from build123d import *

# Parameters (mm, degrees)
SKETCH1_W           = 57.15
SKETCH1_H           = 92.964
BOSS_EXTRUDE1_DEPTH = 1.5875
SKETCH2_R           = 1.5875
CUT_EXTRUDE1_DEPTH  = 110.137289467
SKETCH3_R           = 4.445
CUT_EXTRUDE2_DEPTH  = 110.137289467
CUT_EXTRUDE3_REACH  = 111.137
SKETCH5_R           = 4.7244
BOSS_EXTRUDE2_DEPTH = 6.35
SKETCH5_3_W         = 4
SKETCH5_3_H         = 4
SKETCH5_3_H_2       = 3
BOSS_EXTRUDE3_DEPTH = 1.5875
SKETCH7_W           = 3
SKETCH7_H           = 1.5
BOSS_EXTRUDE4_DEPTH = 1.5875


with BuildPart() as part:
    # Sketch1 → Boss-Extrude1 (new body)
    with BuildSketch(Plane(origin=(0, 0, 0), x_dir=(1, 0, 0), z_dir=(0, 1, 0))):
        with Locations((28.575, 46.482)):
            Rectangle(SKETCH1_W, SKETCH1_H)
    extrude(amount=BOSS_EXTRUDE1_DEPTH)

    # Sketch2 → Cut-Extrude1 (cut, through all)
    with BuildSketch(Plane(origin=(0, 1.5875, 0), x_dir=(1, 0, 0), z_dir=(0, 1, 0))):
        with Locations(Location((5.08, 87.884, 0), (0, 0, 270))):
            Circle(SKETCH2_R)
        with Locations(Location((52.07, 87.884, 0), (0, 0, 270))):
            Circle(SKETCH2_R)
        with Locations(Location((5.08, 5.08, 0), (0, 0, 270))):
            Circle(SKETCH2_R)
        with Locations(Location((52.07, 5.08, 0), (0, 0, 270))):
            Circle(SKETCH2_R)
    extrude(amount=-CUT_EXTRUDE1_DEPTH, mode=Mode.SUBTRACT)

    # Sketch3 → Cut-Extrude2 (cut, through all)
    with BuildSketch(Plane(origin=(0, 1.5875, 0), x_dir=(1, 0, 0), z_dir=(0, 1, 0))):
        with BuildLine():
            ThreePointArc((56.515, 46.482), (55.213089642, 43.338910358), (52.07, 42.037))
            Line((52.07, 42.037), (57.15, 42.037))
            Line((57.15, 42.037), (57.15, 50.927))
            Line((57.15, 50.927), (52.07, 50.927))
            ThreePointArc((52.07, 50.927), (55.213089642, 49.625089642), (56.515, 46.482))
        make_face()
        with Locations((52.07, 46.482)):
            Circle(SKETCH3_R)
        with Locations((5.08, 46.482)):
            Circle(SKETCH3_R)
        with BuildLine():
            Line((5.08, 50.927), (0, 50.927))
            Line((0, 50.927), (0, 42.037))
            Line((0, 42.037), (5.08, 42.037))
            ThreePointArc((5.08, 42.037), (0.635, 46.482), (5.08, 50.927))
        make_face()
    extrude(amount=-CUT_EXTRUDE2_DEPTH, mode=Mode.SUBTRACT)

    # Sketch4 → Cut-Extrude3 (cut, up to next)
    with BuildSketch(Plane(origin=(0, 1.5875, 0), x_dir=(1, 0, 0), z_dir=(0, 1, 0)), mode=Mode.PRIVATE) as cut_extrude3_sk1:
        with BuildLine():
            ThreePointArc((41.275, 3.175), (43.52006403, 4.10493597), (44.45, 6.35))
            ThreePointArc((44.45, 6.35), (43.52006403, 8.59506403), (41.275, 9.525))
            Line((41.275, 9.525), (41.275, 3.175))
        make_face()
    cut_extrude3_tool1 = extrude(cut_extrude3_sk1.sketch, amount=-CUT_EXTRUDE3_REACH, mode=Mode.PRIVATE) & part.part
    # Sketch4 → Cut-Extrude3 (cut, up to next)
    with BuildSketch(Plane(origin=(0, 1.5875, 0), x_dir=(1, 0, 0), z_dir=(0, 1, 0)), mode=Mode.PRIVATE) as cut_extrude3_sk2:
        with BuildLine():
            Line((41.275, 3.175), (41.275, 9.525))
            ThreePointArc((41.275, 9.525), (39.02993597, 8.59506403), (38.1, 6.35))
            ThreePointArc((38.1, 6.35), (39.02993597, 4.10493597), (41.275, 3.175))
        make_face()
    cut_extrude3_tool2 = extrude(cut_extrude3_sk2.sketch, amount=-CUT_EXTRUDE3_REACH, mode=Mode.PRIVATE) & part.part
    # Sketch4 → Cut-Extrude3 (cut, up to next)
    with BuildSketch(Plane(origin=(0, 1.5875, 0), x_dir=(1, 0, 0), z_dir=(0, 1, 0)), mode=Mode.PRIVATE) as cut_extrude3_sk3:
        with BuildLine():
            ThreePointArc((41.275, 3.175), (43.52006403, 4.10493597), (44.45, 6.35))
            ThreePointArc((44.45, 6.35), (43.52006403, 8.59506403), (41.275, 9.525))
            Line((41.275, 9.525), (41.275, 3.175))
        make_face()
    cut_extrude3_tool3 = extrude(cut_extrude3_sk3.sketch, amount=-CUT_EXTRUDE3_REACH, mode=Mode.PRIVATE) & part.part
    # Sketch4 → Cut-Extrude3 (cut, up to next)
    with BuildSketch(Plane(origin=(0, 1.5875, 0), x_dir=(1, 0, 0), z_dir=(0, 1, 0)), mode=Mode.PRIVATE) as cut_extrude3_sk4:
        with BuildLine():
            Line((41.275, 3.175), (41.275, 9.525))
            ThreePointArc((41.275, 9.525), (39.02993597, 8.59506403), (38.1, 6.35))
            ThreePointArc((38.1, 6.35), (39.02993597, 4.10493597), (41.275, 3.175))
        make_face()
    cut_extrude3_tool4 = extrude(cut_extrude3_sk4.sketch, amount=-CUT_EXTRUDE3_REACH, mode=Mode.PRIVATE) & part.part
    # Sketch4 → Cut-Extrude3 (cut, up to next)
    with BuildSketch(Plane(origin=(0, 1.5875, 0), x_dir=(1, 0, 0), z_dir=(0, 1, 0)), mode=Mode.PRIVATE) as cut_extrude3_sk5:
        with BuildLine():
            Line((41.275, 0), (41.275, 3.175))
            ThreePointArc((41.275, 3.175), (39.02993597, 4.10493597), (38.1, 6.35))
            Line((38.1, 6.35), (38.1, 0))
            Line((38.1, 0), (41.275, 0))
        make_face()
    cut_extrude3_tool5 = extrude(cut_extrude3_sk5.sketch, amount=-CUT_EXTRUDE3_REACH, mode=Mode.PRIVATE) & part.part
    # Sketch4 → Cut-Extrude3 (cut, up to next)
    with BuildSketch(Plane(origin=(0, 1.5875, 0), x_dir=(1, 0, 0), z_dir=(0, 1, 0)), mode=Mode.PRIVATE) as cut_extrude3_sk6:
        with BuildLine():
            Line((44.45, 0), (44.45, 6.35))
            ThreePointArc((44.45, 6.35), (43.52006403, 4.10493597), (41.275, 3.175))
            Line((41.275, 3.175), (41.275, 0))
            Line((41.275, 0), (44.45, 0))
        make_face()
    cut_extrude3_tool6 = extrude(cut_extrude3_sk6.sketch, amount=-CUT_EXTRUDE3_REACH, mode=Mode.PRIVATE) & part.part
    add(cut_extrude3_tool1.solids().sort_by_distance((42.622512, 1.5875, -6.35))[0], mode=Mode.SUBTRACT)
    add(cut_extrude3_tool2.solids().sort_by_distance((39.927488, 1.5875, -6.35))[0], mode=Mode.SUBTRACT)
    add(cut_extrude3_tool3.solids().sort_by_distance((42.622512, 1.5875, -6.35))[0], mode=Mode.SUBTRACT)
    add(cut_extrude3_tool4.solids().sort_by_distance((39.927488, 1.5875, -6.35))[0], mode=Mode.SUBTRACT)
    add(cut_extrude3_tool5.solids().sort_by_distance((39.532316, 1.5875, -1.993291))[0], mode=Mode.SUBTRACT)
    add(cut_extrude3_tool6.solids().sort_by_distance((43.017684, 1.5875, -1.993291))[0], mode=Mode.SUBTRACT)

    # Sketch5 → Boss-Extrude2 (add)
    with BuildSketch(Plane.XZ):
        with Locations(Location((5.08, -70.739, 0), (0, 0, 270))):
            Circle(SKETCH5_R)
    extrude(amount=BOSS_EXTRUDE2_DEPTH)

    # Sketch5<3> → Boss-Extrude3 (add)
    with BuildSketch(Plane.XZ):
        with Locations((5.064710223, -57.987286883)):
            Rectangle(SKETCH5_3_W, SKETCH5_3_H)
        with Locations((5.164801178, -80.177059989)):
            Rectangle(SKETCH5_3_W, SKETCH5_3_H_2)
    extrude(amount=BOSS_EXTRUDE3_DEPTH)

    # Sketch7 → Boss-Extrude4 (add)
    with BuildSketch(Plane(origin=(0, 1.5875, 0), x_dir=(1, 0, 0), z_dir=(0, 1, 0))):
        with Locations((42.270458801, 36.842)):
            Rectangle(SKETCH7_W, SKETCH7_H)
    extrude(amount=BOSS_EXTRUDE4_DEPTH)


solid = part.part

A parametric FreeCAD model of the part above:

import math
import FreeCAD as App
import Part
import Sketcher
Q = App.Units.Quantity

doc = App.newDocument("Part")
params = doc.addObject("Spreadsheet::Sheet", "Params")
for row, (alias, value) in enumerate([
    ("sketch1_width", "2.25 in"),
    ("sketch1_height", "3.66 in"),
    ("pad1_length", "0.0625 in"),
    ("sketch2_diameter", "0.125 in"),
    ("sketch3_width", "0.2 in"),
    ("sketch3_radius", "0.175 in"),
    ("sketch4_radius", "0.125 in"),
    ("sketch5_radius", "0.125 in"),
    ("sketch6_radius", "0.125 in"),
    ("pocket5_length", "0.0625 in"),
    ("sketch7_radius", "0.125 in"),
    ("pocket6_length", "0.0625 in"),
    ("sketch8_radius", "0.125 in"),
    ("sketch9_radius", "0.125 in"),
    ("sketch9_height", "0.25 in"),
    ("sketch10_diameter", "0.372 in"),
    ("pad2_length", "0.25 in"),
    ("pad3_length", "0.0625 in"),
    ("pad4_length", "0.0625 in"),
], start=1):
    params.set(f"A{row}", alias)
    params.set(f"B{row}", "=" + value)
    params.setAlias(f"B{row}", alias)

body = doc.addObject("PartDesign::Body", "Body")

# Sketch on XZ plane
sketch1 = body.newObject("Sketcher::SketchObject", "Sketch")
sketch1.AttachmentSupport = (doc.getObject("XZ_Plane"), [""])
sketch1.MapMode = "FlatFace"
sketch1.addGeometry([
    Part.LineSegment(App.Vector(0, -92.964, 0), App.Vector(0, 0, 0)),
    Part.LineSegment(App.Vector(0, 0, 0), App.Vector(57.15, 0, 0)),
    Part.LineSegment(App.Vector(57.15, 0, 0), App.Vector(57.15, -92.964, 0)),
    Part.LineSegment(App.Vector(57.15, -92.964, 0), App.Vector(0, -92.964, 0)),
], False)
sketch1.addConstraint([
    Sketcher.Constraint("Coincident", 0, 2, 1, 1),
    Sketcher.Constraint("Coincident", 1, 2, 2, 1),
    Sketcher.Constraint("Coincident", 2, 2, 3, 1),
    Sketcher.Constraint("Coincident", 3, 2, 0, 1),
    Sketcher.Constraint("Vertical", 0),
    Sketcher.Constraint("Horizontal", 1),
    Sketcher.Constraint("Vertical", 2),
    Sketcher.Constraint("Horizontal", 3),
    Sketcher.Constraint("Coincident", 0, 2, -1, 1),
    Sketcher.Constraint("DistanceX", 1, 1, 1, 2, Q("2.25 in")),
    Sketcher.Constraint("DistanceY", 0, 1, 0, 2, Q("3.66 in")),
])
sketch1.setExpression("Constraints[9]", "Params.sketch1_width")
sketch1.setExpression("Constraints[10]", "Params.sketch1_height")
pad1 = body.newObject("PartDesign::Pad", "Pad")
pad1.Profile = sketch1
pad1.setExpression("Length", "Params.pad1_length")
pad1.Reversed = True

# Sketch on XZ plane
sketch2 = body.newObject("Sketcher::SketchObject", "Sketch001")
sketch2.AttachmentSupport = (doc.getObject("XZ_Plane"), [""])
sketch2.MapMode = "FlatFace"
sketch2.AttachmentOffset = App.Placement(App.Vector(0, 0, -0.0625 * 25.4), App.Rotation())
sketch2.addGeometry([
    Part.Circle(App.Vector(5.08, -87.884, 0), App.Vector(0, 0, 1), 1.5875),
    Part.Circle(App.Vector(52.07, -87.884, 0), App.Vector(0, 0, 1), 1.5875),
    Part.Circle(App.Vector(5.08, -5.08, 0), App.Vector(0, 0, 1), 1.5875),
    Part.Circle(App.Vector(52.07, -5.08, 0), App.Vector(0, 0, 1), 1.5875),
], False)
sketch2.addConstraint([
    Sketcher.Constraint("Equal", 0, 1),
    Sketcher.Constraint("Equal", 1, 2),
    Sketcher.Constraint("Equal", 2, 3),
    Sketcher.Constraint("Horizontal", 0, 3, 1, 3),
    Sketcher.Constraint("Horizontal", 2, 3, 3, 3),
    Sketcher.Constraint("Vertical", 0, 3, 2, 3),
    Sketcher.Constraint("Vertical", 1, 3, 3, 3),
    Sketcher.Constraint("Diameter", 0, Q("0.125 in")),
    Sketcher.Constraint("DistanceX", -1, 1, 0, 3, Q("0.2 in")),
    Sketcher.Constraint("DistanceY", 2, 3, -1, 1, Q("0.2 in")),
    Sketcher.Constraint("DistanceY", 0, 3, -1, 1, Q("3.46 in")),
    Sketcher.Constraint("DistanceX", -1, 1, 1, 3, Q("2.05 in")),
])
sketch2.setExpression("Constraints[7]", "Params.sketch2_diameter")
pocket1 = body.newObject("PartDesign::Pocket", "Pocket")
pocket1.Profile = sketch2
pocket1.Type = "ThroughAll"
pocket1.Reversed = True

# Sketch on XZ plane
sketch3 = body.newObject("Sketcher::SketchObject", "Sketch002")
sketch3.AttachmentSupport = (doc.getObject("XZ_Plane"), [""])
sketch3.MapMode = "FlatFace"
sketch3.AttachmentOffset = App.Placement(App.Vector(0, 0, -0.0625 * 25.4), App.Rotation())
sketch3.addGeometry([
    Part.LineSegment(App.Vector(52.07, -42.037, 0), App.Vector(57.15, -42.037, 0)),  # 0
    Part.LineSegment(App.Vector(57.15, -42.037, 0), App.Vector(57.15, -50.927, 0)),  # 1
    Part.LineSegment(App.Vector(57.15, -50.927, 0), App.Vector(52.07, -50.927, 0)),  # 2
    Part.ArcOfCircle(Part.Circle(App.Vector(52.07, -46.482, 0), App.Vector(0, 0, 1), 4.445), math.radians(90), math.radians(270)),  # 3
    Part.LineSegment(App.Vector(5.08, -50.927, 0), App.Vector(0, -50.927, 0)),  # 4
    Part.LineSegment(App.Vector(0, -50.927, 0), App.Vector(0, -42.037, 0)),  # 5
    Part.LineSegment(App.Vector(0, -42.037, 0), App.Vector(5.08, -42.037, 0)),  # 6
    Part.ArcOfCircle(Part.Circle(App.Vector(5.08, -46.482, 0), App.Vector(0, 0, 1), 4.445), math.radians(-90), math.radians(90)),  # 7
], False)
sketch3.addConstraint([
    Sketcher.Constraint("Coincident", 0, 2, 1, 1),
    Sketcher.Constraint("Coincident", 1, 2, 2, 1),
    Sketcher.Constraint("Tangent", 2, 2, 3, 2),
    Sketcher.Constraint("Tangent", 3, 1, 0, 1),
    Sketcher.Constraint("Coincident", 4, 2, 5, 1),
    Sketcher.Constraint("Coincident", 5, 2, 6, 1),
    Sketcher.Constraint("Tangent", 6, 2, 7, 2),
    Sketcher.Constraint("Tangent", 7, 1, 4, 1),
    Sketcher.Constraint("Horizontal", 0),
    Sketcher.Constraint("Vertical", 1),
    Sketcher.Constraint("Horizontal", 2),
    Sketcher.Constraint("Horizontal", 4),
    Sketcher.Constraint("Vertical", 5),
    Sketcher.Constraint("Horizontal", 6),
    Sketcher.Constraint("Equal", 3, 7),
    Sketcher.Constraint("PointOnObject", 4, 2, -2),
    Sketcher.Constraint("Horizontal", 3, 3, 7, 3),
    Sketcher.Constraint("Equal", 2, 4),
    Sketcher.Constraint("DistanceX", 0, 1, 0, 2, Q("0.2 in")),
    Sketcher.Constraint("Radius", 3, Q("0.175 in")),
    Sketcher.Constraint("DistanceX", -1, 1, 3, 3, Q("2.05 in")),
    Sketcher.Constraint("DistanceY", 3, 3, -1, 1, Q("1.83 in")),
])
sketch3.setExpression("Constraints[18]", "Params.sketch3_width")
sketch3.setExpression("Constraints[19]", "Params.sketch3_radius")
pocket2 = body.newObject("PartDesign::Pocket", "Pocket001")
pocket2.Profile = sketch3
pocket2.Type = "ThroughAll"
pocket2.Reversed = True

# Sketch on XZ plane
sketch4 = body.newObject("Sketcher::SketchObject", "Sketch003")
sketch4.AttachmentSupport = (doc.getObject("XZ_Plane"), [""])
sketch4.MapMode = "FlatFace"
sketch4.AttachmentOffset = App.Placement(App.Vector(0, 0, -0.0625 * 25.4), App.Rotation())
sketch4.addGeometry([
    Part.ArcOfCircle(Part.Circle(App.Vector(41.275, -6.35, 0), App.Vector(0, 0, 1), 3.175), math.radians(0), math.radians(90)),
    Part.ArcOfCircle(Part.Circle(App.Vector(41.275, -6.35, 0), App.Vector(0, 0, 1), 3.175), math.radians(-90), math.radians(0)),
    Part.LineSegment(App.Vector(41.275, -9.525, 0), App.Vector(41.275, -3.175, 0)),
], False)
sketch4.addConstraint([
    Sketcher.Constraint("Tangent", 0, 1, 1, 2),
    Sketcher.Constraint("Coincident", 1, 1, 2, 1),
    Sketcher.Constraint("Coincident", 2, 2, 0, 2),
    Sketcher.Constraint("Vertical", 2),
    Sketcher.Constraint("Equal", 0, 1),
    Sketcher.Constraint("Horizontal", 1, 3, 0, 1),
    Sketcher.Constraint("Vertical", 0, 3, 1, 1),
    Sketcher.Constraint("Radius", 0, Q("0.125 in")),
    Sketcher.Constraint("DistanceY", 0, 3, -1, 1, Q("0.25 in")),
    Sketcher.Constraint("DistanceX", -1, 1, 0, 1, Q("1.75 in")),
])
sketch4.setExpression("Constraints[7]", "Params.sketch4_radius")
pocket3 = body.newObject("PartDesign::Pocket", "Pocket002")
pocket3.Profile = sketch4
pocket3.Type = "UpToFirst"
pocket3.Reversed = True

# Sketch on XZ plane
sketch5 = body.newObject("Sketcher::SketchObject", "Sketch004")
sketch5.AttachmentSupport = (doc.getObject("XZ_Plane"), [""])
sketch5.MapMode = "FlatFace"
sketch5.AttachmentOffset = App.Placement(App.Vector(0, 0, -0.0625 * 25.4), App.Rotation())
sketch5.addGeometry([
    Part.LineSegment(App.Vector(41.275, -3.175, 0), App.Vector(41.275, -9.525, 0)),
    Part.ArcOfCircle(Part.Circle(App.Vector(41.275, -6.35, 0), App.Vector(0, 0, 1), 3.175), math.radians(-180), math.radians(-90)),
    Part.ArcOfCircle(Part.Circle(App.Vector(41.275, -6.35, 0), App.Vector(0, 0, 1), 3.175), math.radians(90), math.radians(180)),
], False)
sketch5.addConstraint([
    Sketcher.Constraint("Coincident", 0, 2, 1, 2),
    Sketcher.Constraint("Tangent", 1, 1, 2, 2),
    Sketcher.Constraint("Coincident", 2, 1, 0, 1),
    Sketcher.Constraint("Vertical", 0),
    Sketcher.Constraint("Equal", 1, 2),
    Sketcher.Constraint("Horizontal", 2, 3, 1, 1),
    Sketcher.Constraint("Vertical", 2, 3, 0, 2),
    Sketcher.Constraint("Radius", 1, Q("0.125 in")),
    Sketcher.Constraint("DistanceX", -1, 1, 1, 1, Q("1.5 in")),
    Sketcher.Constraint("DistanceY", 1, 3, -1, 1, Q("0.25 in")),
])
sketch5.setExpression("Constraints[7]", "Params.sketch5_radius")
pocket4 = body.newObject("PartDesign::Pocket", "Pocket003")
pocket4.Profile = sketch5
pocket4.Type = "UpToFirst"
pocket4.Reversed = True

# Sketch on XZ plane
sketch6 = body.newObject("Sketcher::SketchObject", "Sketch005")
sketch6.AttachmentSupport = (doc.getObject("XZ_Plane"), [""])
sketch6.MapMode = "FlatFace"
sketch6.AttachmentOffset = App.Placement(App.Vector(0, 0, -0.0625 * 25.4), App.Rotation())
sketch6.addGeometry([
    Part.ArcOfCircle(Part.Circle(App.Vector(41.275, -6.35, 0), App.Vector(0, 0, 1), 3.175), math.radians(0), math.radians(90)),
    Part.ArcOfCircle(Part.Circle(App.Vector(41.275, -6.35, 0), App.Vector(0, 0, 1), 3.175), math.radians(-90), math.radians(0)),
    Part.LineSegment(App.Vector(41.275, -9.525, 0), App.Vector(41.275, -3.175, 0)),
], False)
sketch6.addConstraint([
    Sketcher.Constraint("Tangent", 0, 1, 1, 2),
    Sketcher.Constraint("Coincident", 1, 1, 2, 1),
    Sketcher.Constraint("Coincident", 2, 2, 0, 2),
    Sketcher.Constraint("Vertical", 2),
    Sketcher.Constraint("Equal", 0, 1),
    Sketcher.Constraint("Horizontal", 1, 3, 0, 1),
    Sketcher.Constraint("Vertical", 0, 3, 1, 1),
    Sketcher.Constraint("Radius", 0, Q("0.125 in")),
    Sketcher.Constraint("DistanceY", 0, 3, -1, 1, Q("0.25 in")),
    Sketcher.Constraint("DistanceX", -1, 1, 0, 1, Q("1.75 in")),
])
sketch6.setExpression("Constraints[7]", "Params.sketch6_radius")
pocket5 = body.newObject("PartDesign::Pocket", "Pocket004")
pocket5.Profile = sketch6
pocket5.setExpression("Length", "Params.pocket5_length")
pocket5.Reversed = True

# Sketch on XZ plane
sketch7 = body.newObject("Sketcher::SketchObject", "Sketch006")
sketch7.AttachmentSupport = (doc.getObject("XZ_Plane"), [""])
sketch7.MapMode = "FlatFace"
sketch7.AttachmentOffset = App.Placement(App.Vector(0, 0, -0.0625 * 25.4), App.Rotation())
sketch7.addGeometry([
    Part.LineSegment(App.Vector(41.275, -3.175, 0), App.Vector(41.275, -9.525, 0)),
    Part.ArcOfCircle(Part.Circle(App.Vector(41.275, -6.35, 0), App.Vector(0, 0, 1), 3.175), math.radians(-180), math.radians(-90)),
    Part.ArcOfCircle(Part.Circle(App.Vector(41.275, -6.35, 0), App.Vector(0, 0, 1), 3.175), math.radians(90), math.radians(180)),
], False)
sketch7.addConstraint([
    Sketcher.Constraint("Coincident", 0, 2, 1, 2),
    Sketcher.Constraint("Tangent", 1, 1, 2, 2),
    Sketcher.Constraint("Coincident", 2, 1, 0, 1),
    Sketcher.Constraint("Vertical", 0),
    Sketcher.Constraint("Equal", 1, 2),
    Sketcher.Constraint("Horizontal", 2, 3, 1, 1),
    Sketcher.Constraint("Vertical", 2, 3, 0, 2),
    Sketcher.Constraint("Radius", 1, Q("0.125 in")),
    Sketcher.Constraint("DistanceX", -1, 1, 1, 1, Q("1.5 in")),
    Sketcher.Constraint("DistanceY", 1, 3, -1, 1, Q("0.25 in")),
])
sketch7.setExpression("Constraints[7]", "Params.sketch7_radius")
pocket6 = body.newObject("PartDesign::Pocket", "Pocket005")
pocket6.Profile = sketch7
pocket6.setExpression("Length", "Params.pocket6_length")
pocket6.Reversed = True

# Sketch on XZ plane
sketch8 = body.newObject("Sketcher::SketchObject", "Sketch007")
sketch8.AttachmentSupport = (doc.getObject("XZ_Plane"), [""])
sketch8.MapMode = "FlatFace"
sketch8.AttachmentOffset = App.Placement(App.Vector(0, 0, -0.0625 * 25.4), App.Rotation())
sketch8.addGeometry([
    Part.LineSegment(App.Vector(41.275, 0, 0), App.Vector(41.275, -3.175, 0)),
    Part.ArcOfCircle(Part.Circle(App.Vector(41.275, -6.35, 0), App.Vector(0, 0, 1), 3.175), math.radians(90), math.radians(180)),
    Part.LineSegment(App.Vector(38.1, -6.35, 0), App.Vector(38.1, 0, 0)),
    Part.LineSegment(App.Vector(38.1, 0, 0), App.Vector(41.275, 0, 0)),
], False)
sketch8.addConstraint([
    Sketcher.Constraint("Coincident", 0, 2, 1, 1),
    Sketcher.Constraint("Tangent", 1, 2, 2, 1),
    Sketcher.Constraint("Coincident", 2, 2, 3, 1),
    Sketcher.Constraint("Coincident", 3, 2, 0, 1),
    Sketcher.Constraint("Vertical", 0),
    Sketcher.Constraint("Vertical", 2),
    Sketcher.Constraint("Horizontal", 3),
    Sketcher.Constraint("PointOnObject", 2, 2, -1),
    Sketcher.Constraint("Vertical", 1, 3, 0, 2),
    Sketcher.Constraint("Equal", 3, 0),
    Sketcher.Constraint("Radius", 1, Q("0.125 in")),
    Sketcher.Constraint("DistanceX", -1, 1, 1, 2, Q("1.5 in")),
])
sketch8.setExpression("Constraints[10]", "Params.sketch8_radius")
pocket7 = body.newObject("PartDesign::Pocket", "Pocket006")
pocket7.Profile = sketch8
pocket7.Type = "UpToFirst"
pocket7.Reversed = True

# Sketch on XZ plane
sketch9 = body.newObject("Sketcher::SketchObject", "Sketch008")
sketch9.AttachmentSupport = (doc.getObject("XZ_Plane"), [""])
sketch9.MapMode = "FlatFace"
sketch9.AttachmentOffset = App.Placement(App.Vector(0, 0, -0.0625 * 25.4), App.Rotation())
sketch9.addGeometry([
    Part.LineSegment(App.Vector(44.45, 0, 0), App.Vector(44.45, -6.35, 0)),
    Part.ArcOfCircle(Part.Circle(App.Vector(41.275, -6.35, 0), App.Vector(0, 0, 1), 3.175), math.radians(0), math.radians(90)),
    Part.LineSegment(App.Vector(41.275, -3.175, 0), App.Vector(41.275, 0, 0)),
    Part.LineSegment(App.Vector(41.275, 0, 0), App.Vector(44.45, 0, 0)),
], False)
sketch9.addConstraint([
    Sketcher.Constraint("Tangent", 0, 2, 1, 1),
    Sketcher.Constraint("Coincident", 1, 2, 2, 1),
    Sketcher.Constraint("Coincident", 2, 2, 3, 1),
    Sketcher.Constraint("Coincident", 3, 2, 0, 1),
    Sketcher.Constraint("Vertical", 0),
    Sketcher.Constraint("Vertical", 2),
    Sketcher.Constraint("Horizontal", 3),
    Sketcher.Constraint("PointOnObject", 2, 2, -1),
    Sketcher.Constraint("Equal", 3, 2),
    Sketcher.Constraint("Radius", 1, Q("0.125 in")),
    Sketcher.Constraint("DistanceY", 0, 2, 0, 1, Q("0.25 in")),
    Sketcher.Constraint("DistanceX", -1, 1, 0, 2, Q("1.75 in")),
])
sketch9.setExpression("Constraints[9]", "Params.sketch9_radius")
sketch9.setExpression("Constraints[10]", "Params.sketch9_height")
pocket8 = body.newObject("PartDesign::Pocket", "Pocket007")
pocket8.Profile = sketch9
pocket8.Type = "UpToFirst"
pocket8.Reversed = True

# Sketch on XZ plane
sketch10 = body.newObject("Sketcher::SketchObject", "Sketch009")
sketch10.AttachmentSupport = (doc.getObject("XZ_Plane"), [""])
sketch10.MapMode = "FlatFace"
sketch10.addGeometry(Part.Circle(App.Vector(5.08, -70.739, 0), App.Vector(0, 0, 1), 4.7244), False)
sketch10.addConstraint([
    Sketcher.Constraint("Diameter", 0, Q("0.372 in")),
    Sketcher.Constraint("DistanceX", -1, 1, 0, 3, Q("0.2 in")),
    Sketcher.Constraint("DistanceY", 0, 3, -1, 1, Q("2.785 in")),
])
sketch10.setExpression("Constraints[0]", "Params.sketch10_diameter")
pad2 = body.newObject("PartDesign::Pad", "Pad001")
pad2.Profile = sketch10
pad2.setExpression("Length", "Params.pad2_length")

# Sketch on XZ plane
sketch11 = body.newObject("Sketcher::SketchObject", "Sketch010")
sketch11.AttachmentSupport = (doc.getObject("XZ_Plane"), [""])
sketch11.MapMode = "FlatFace"
sketch11.addGeometry([
    Part.LineSegment(App.Vector(3.06471, -55.987287, 0), App.Vector(3.06471, -59.987287, 0)),  # 0
    Part.LineSegment(App.Vector(3.06471, -59.987287, 0), App.Vector(7.06471, -59.987287, 0)),  # 1
    Part.LineSegment(App.Vector(7.06471, -59.987287, 0), App.Vector(7.06471, -55.987287, 0)),  # 2
    Part.LineSegment(App.Vector(7.06471, -55.987287, 0), App.Vector(3.06471, -55.987287, 0)),  # 3
    Part.LineSegment(App.Vector(3.164801, -78.67706, 0), App.Vector(3.164801, -81.67706, 0)),  # 4
    Part.LineSegment(App.Vector(3.164801, -81.67706, 0), App.Vector(7.164801, -81.67706, 0)),  # 5
    Part.LineSegment(App.Vector(7.164801, -81.67706, 0), App.Vector(7.164801, -78.67706, 0)),  # 6
    Part.LineSegment(App.Vector(7.164801, -78.67706, 0), App.Vector(3.164801, -78.67706, 0)),  # 7
], False)
sketch11.addConstraint([
    Sketcher.Constraint("Coincident", 0, 2, 1, 1),
    Sketcher.Constraint("Coincident", 1, 2, 2, 1),
    Sketcher.Constraint("Coincident", 2, 2, 3, 1),
    Sketcher.Constraint("Coincident", 3, 2, 0, 1),
    Sketcher.Constraint("Coincident", 4, 2, 5, 1),
    Sketcher.Constraint("Coincident", 5, 2, 6, 1),
    Sketcher.Constraint("Coincident", 6, 2, 7, 1),
    Sketcher.Constraint("Coincident", 7, 2, 4, 1),
    Sketcher.Constraint("Vertical", 0),
    Sketcher.Constraint("Horizontal", 1),
    Sketcher.Constraint("Vertical", 2),
    Sketcher.Constraint("Horizontal", 3),
    Sketcher.Constraint("Vertical", 4),
    Sketcher.Constraint("Horizontal", 5),
    Sketcher.Constraint("Vertical", 6),
    Sketcher.Constraint("Horizontal", 7),
    Sketcher.Constraint("Equal", 3, 5),
    Sketcher.Constraint("Equal", 7, 0),
    Sketcher.Constraint("DistanceX", 1, 1, 1, 2, 4.0),
    Sketcher.Constraint("DistanceY", 4, 2, 4, 1, 3.0),
    Sketcher.Constraint("DistanceX", -1, 1, 4, 2, 3.164801),
    Sketcher.Constraint("DistanceX", -1, 1, 0, 2, 3.06471),
    Sketcher.Constraint("DistanceY", 4, 2, -1, 1, 81.67706),
    Sketcher.Constraint("DistanceY", 0, 2, -1, 1, 59.987287),
])
pad3 = body.newObject("PartDesign::Pad", "Pad002")
pad3.Profile = sketch11
pad3.setExpression("Length", "Params.pad3_length")

# Sketch on XZ plane
sketch12 = body.newObject("Sketcher::SketchObject", "Sketch011")
sketch12.AttachmentSupport = (doc.getObject("XZ_Plane"), [""])
sketch12.MapMode = "FlatFace"
sketch12.AttachmentOffset = App.Placement(App.Vector(0, 0, -0.0625 * 25.4), App.Rotation())
sketch12.addGeometry([
    Part.LineSegment(App.Vector(40.770459, -37.592, 0), App.Vector(40.770459, -36.092, 0)),
    Part.LineSegment(App.Vector(40.770459, -36.092, 0), App.Vector(43.770459, -36.092, 0)),
    Part.LineSegment(App.Vector(43.770459, -36.092, 0), App.Vector(43.770459, -37.592, 0)),
    Part.LineSegment(App.Vector(43.770459, -37.592, 0), App.Vector(40.770459, -37.592, 0)),
], False)
sketch12.addConstraint([
    Sketcher.Constraint("Coincident", 0, 2, 1, 1),
    Sketcher.Constraint("Coincident", 1, 2, 2, 1),
    Sketcher.Constraint("Coincident", 2, 2, 3, 1),
    Sketcher.Constraint("Coincident", 3, 2, 0, 1),
    Sketcher.Constraint("Vertical", 0),
    Sketcher.Constraint("Horizontal", 1),
    Sketcher.Constraint("Vertical", 2),
    Sketcher.Constraint("Horizontal", 3),
    Sketcher.Constraint("DistanceY", 2, 2, -1, 1, Q("1.48 in")),
    Sketcher.Constraint("DistanceX", 1, 1, 1, 2, 3.0),
    Sketcher.Constraint("DistanceY", 0, 1, 0, 2, 1.5),
    Sketcher.Constraint("DistanceX", -1, 1, 0, 2, 40.770459),
])
pad4 = body.newObject("PartDesign::Pad", "Pad003")
pad4.Profile = sketch12
pad4.setExpression("Length", "Params.pad4_length")
pad4.Reversed = True

doc.recompute()
